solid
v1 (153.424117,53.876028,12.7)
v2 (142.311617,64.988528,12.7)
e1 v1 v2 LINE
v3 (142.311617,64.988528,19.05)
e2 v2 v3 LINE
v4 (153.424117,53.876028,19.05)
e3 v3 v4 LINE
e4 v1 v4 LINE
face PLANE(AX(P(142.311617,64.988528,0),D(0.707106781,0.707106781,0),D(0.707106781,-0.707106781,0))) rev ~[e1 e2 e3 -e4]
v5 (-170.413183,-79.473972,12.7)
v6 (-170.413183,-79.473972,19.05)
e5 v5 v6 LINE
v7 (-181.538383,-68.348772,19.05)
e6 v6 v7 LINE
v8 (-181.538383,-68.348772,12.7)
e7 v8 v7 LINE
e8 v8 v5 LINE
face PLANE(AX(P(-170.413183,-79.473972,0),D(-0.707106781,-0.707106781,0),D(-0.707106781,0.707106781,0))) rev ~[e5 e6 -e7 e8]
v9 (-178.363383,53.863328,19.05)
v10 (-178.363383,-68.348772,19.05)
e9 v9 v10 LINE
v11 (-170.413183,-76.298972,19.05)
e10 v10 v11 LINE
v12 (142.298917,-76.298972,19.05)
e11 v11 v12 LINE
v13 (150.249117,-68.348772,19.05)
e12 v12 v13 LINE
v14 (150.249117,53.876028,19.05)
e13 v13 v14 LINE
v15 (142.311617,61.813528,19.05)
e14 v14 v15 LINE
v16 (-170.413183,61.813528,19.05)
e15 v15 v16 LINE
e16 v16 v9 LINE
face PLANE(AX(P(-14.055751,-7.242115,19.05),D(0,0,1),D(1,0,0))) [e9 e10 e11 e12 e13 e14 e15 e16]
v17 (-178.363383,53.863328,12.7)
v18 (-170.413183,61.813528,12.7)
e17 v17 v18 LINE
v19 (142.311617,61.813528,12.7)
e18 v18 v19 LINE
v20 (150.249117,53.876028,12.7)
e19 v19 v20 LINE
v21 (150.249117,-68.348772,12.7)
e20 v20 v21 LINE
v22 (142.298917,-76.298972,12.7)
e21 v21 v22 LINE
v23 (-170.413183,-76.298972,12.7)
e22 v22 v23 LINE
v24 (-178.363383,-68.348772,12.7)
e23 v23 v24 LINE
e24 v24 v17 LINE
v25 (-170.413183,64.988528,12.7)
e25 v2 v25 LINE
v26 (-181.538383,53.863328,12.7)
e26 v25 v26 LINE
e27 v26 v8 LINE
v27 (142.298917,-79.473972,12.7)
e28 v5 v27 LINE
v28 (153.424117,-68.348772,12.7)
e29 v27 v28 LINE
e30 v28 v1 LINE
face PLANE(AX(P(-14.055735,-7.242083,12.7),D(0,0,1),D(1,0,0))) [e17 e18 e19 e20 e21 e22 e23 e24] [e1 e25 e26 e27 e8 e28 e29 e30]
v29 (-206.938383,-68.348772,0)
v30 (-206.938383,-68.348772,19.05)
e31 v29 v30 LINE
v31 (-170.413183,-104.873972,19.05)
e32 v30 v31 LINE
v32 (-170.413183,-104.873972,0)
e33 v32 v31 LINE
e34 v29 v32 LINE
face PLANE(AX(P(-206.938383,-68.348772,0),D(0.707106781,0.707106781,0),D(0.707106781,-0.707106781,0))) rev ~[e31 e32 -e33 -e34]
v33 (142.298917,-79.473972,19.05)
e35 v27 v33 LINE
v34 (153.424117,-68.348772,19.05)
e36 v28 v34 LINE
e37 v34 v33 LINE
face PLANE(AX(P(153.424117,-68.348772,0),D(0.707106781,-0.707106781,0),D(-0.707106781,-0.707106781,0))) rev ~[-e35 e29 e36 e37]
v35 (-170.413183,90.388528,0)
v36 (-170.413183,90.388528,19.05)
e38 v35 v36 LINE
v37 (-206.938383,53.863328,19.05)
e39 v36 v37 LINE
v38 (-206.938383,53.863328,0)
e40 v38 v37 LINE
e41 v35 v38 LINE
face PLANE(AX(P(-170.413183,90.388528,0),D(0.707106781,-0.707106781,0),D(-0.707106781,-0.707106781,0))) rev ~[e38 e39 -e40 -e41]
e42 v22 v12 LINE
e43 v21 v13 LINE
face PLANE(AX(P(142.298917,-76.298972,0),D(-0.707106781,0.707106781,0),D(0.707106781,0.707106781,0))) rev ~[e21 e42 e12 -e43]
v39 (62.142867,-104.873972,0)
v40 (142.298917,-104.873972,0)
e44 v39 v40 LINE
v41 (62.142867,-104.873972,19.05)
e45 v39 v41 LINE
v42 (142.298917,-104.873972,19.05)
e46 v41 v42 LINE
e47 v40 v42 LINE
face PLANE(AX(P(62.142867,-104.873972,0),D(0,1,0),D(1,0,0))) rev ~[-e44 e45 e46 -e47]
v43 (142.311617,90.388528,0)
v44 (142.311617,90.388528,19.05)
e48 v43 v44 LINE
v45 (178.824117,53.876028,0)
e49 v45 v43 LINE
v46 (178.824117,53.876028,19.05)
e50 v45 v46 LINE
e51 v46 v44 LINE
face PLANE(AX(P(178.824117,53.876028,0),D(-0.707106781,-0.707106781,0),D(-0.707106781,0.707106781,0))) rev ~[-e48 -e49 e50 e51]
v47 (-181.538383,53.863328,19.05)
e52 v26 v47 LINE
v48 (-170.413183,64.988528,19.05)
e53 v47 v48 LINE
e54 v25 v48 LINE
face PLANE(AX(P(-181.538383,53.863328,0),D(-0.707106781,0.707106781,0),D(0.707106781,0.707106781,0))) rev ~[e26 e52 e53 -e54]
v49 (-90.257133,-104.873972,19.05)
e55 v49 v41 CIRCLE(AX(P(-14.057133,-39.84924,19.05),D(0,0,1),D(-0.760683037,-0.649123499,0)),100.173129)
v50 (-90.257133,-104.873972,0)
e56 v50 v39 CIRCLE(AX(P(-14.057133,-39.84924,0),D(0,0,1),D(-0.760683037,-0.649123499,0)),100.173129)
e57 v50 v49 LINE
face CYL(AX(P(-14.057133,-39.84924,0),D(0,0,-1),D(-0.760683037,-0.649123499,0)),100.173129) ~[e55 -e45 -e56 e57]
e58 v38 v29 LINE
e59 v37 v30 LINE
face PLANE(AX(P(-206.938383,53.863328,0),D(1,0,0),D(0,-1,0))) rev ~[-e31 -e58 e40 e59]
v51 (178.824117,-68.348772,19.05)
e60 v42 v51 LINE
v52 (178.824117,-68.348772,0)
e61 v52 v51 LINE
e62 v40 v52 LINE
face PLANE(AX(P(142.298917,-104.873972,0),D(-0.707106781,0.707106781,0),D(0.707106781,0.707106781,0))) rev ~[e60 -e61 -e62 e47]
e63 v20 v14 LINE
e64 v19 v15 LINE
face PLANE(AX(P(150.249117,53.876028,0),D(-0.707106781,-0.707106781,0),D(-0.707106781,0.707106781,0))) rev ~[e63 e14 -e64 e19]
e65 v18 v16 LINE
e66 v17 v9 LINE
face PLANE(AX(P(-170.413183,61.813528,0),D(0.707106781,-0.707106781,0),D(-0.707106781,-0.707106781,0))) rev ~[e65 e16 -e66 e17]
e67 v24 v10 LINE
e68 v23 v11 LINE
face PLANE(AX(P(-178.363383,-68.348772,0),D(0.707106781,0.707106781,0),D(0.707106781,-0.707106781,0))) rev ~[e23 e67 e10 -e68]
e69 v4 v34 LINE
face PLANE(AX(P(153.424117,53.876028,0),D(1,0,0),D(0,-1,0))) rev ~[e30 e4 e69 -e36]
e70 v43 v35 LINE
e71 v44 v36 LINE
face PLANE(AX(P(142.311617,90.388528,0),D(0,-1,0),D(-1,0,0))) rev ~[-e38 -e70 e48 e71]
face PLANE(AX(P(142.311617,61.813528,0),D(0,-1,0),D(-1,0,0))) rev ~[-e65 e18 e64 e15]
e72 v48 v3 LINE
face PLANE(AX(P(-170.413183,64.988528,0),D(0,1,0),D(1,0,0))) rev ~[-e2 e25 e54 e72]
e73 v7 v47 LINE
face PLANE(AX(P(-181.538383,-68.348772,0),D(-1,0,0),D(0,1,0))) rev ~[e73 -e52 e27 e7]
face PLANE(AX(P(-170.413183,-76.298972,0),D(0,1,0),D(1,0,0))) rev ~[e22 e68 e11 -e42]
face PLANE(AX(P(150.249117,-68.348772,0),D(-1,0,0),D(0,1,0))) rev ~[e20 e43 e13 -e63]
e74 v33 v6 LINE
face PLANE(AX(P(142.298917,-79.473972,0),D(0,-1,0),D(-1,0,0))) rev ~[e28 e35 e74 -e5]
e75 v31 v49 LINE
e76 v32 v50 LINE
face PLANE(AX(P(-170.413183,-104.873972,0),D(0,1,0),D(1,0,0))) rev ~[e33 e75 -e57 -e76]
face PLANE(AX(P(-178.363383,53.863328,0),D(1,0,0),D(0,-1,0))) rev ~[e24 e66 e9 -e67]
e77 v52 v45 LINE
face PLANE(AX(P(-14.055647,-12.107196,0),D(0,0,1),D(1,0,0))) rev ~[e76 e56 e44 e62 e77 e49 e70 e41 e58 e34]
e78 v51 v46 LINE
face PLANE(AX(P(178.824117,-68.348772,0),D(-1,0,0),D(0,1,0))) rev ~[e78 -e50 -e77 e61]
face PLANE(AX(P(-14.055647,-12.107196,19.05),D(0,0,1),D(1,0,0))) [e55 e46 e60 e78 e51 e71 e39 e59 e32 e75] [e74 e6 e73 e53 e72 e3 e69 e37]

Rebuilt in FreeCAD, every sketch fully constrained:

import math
import FreeCAD as App
import Part
import Sketcher
Q = App.Units.Quantity


def add_polygon(sketch, points):
    """Adds a closed chain of lines whose ends are joined by coincident constraints."""
    first, n = sketch.GeometryCount, len(points)
    for a, b in zip(points, points[1:] + points[:1]):
        sketch.addGeometry(Part.LineSegment(App.Vector(*a, 0), App.Vector(*b, 0)), False)
    for i in range(n):
        sketch.addConstraint(Sketcher.Constraint("Coincident", first + i, 2, first + (i + 1) % n, 1))

doc = App.newDocument("Part")
body = doc.addObject("PartDesign::Body", "Body")

sketch1 = body.newObject("Sketcher::SketchObject", "Sketch")
sketch1.AttachmentSupport = (doc.getObject("XY_Plane"), [""])
sketch1.MapMode = "FlatFace"
add_polygon(sketch1, [(-170, 62), (-178, 54), (-178, -68), (-170, -76), (142, -76), (150, -68), (150, 54), (142, 62)])
sketch1.addConstraint([
    Sketcher.Constraint("Vertical", 1),
    Sketcher.Constraint("Horizontal", 3),
    Sketcher.Constraint("Vertical", 5),
    Sketcher.Constraint("Horizontal", 7),
    Sketcher.Constraint("Perpendicular", 0, 2),
    Sketcher.Constraint("Perpendicular", 2, 4),
    Sketcher.Constraint("Perpendicular", 4, 6),
    Sketcher.Constraint("Horizontal", 1, 2, 4, 2),
    Sketcher.Constraint("Vertical", 2, 2, 7, 2),
    Sketcher.Constraint("Equal", 0, 2),
    Sketcher.Constraint("DistanceX", 7, 2, 7, 1, Q("12.312 in")),
    Sketcher.Constraint("DistanceY", 5, 1, 5, 2, Q("4.812 in")),
    Sketcher.Constraint("DistanceX", 3, 1, 3, 2, Q("12.3115 in")),
    Sketcher.Constraint("DistanceX", 1, 2, 2, 2, Q("0.313 in")),
    Sketcher.Constraint("DistanceY", -1, 1, 0, 2, 53.863328),
    Sketcher.Constraint("DistanceX", 0, 2, -1, 1, 178.363383),
])
pad1 = body.newObject("PartDesign::Pad", "Pad")
pad1.Profile = sketch1
pad1.Length = Q("0.75 in")

sketch2 = body.newObject("Sketcher::SketchObject", "Sketch001")
sketch2.AttachmentSupport = (doc.getObject("XY_Plane"), [""])
sketch2.MapMode = "FlatFace"
add_polygon(sketch2, [(153, 54), (142, 65), (-170, 65), (-182, 54), (-182, -68), (-170, -79), (142, -79), (153, -68)])
add_polygon(sketch2, [(-170, -76), (-178, -68), (-178, 54), (-170, 62), (142, 62), (150, 54), (150, -68), (142, -76)])
sketch2.addConstraint([
    Sketcher.Constraint("Horizontal", 1),
    Sketcher.Constraint("Vertical", 3),
    Sketcher.Constraint("Horizontal", 5),
    Sketcher.Constraint("Vertical", 7),
    Sketcher.Constraint("Vertical", 9),
    Sketcher.Constraint("Horizontal", 11),
    Sketcher.Constraint("Vertical", 13),
    Sketcher.Constraint("Horizontal", 15),
    Sketcher.Constraint("Perpendicular", 0, 2),
    Sketcher.Constraint("Perpendicular", 2, 4),
    Sketcher.Constraint("Perpendicular", 4, 6),
    Sketcher.Constraint("Perpendicular", 6, 8),
    Sketcher.Constraint("Perpendicular", 8, 10),
    Sketcher.Constraint("Perpendicular", 10, 12),
    Sketcher.Constraint("Perpendicular", 12, 14),
    Sketcher.Constraint("Horizontal", 3, 2, 6, 2),
    Sketcher.Constraint("Horizontal", 6, 2, 8, 2),
    Sketcher.Constraint("Horizontal", 2, 2, 9, 2),
    Sketcher.Constraint("Horizontal", 7, 2, 12, 2),
    Sketcher.Constraint("Horizontal", 8, 2, 13, 2),
    Sketcher.Constraint("Vertical", 1, 2, 4, 2),
    Sketcher.Constraint("Vertical", 4, 2, 10, 2),
    Sketcher.Constraint("Vertical", 0, 2, 11, 2),
    Sketcher.Constraint("Vertical", 5, 2, 14, 2),
    Sketcher.Constraint("Vertical", 10, 2, 15, 2),
    Sketcher.Constraint("DistanceX", 1, 2, 1, 1, Q("12.312 in")),
    Sketcher.Constraint("DistanceY", 7, 1, 7, 2, Q("4.812 in")),
    Sketcher.Constraint("DistanceX", 2, 2, 0, 2, Q("12.75 in")),
    Sketcher.Constraint("DistanceX", 5, 1, 5, 2, Q("12.3115 in")),
    Sketcher.Constraint("DistanceX", 3, 2, 8, 2, Q("0.125 in")),
    Sketcher.Constraint("DistanceY", -1, 1, 0, 2, 64.988528),
    Sketcher.Constraint("DistanceX", -1, 1, 0, 2, 142.311617),
])
pad2 = body.newObject("PartDesign::Pad", "Pad001")
pad2.Profile = sketch2
pad2.Length = Q("0.5 in")

sketch3 = body.newObject("Sketcher::SketchObject", "Sketch002")
sketch3.AttachmentSupport = (doc.getObject("XY_Plane"), [""])
sketch3.MapMode = "FlatFace"
sketch3.addGeometry(Part.LineSegment(App.Vector(179, 54, 0), App.Vector(142, 90, 0)), False)
sketch3.addGeometry(Part.LineSegment(App.Vector(142, 90, 0), App.Vector(-170, 90, 0)), False)
sketch3.addGeometry(Part.LineSegment(App.Vector(-170, 90, 0), App.Vector(-207, 54, 0)), False)
sketch3.addGeometry(Part.LineSegment(App.Vector(-207, 54, 0), App.Vector(-207, -68, 0)), False)
sketch3.addGeometry(Part.LineSegment(App.Vector(-207, -68, 0), App.Vector(-170, -105, 0)), False)
sketch3.addGeometry(Part.LineSegment(App.Vector(-170, -105, 0), App.Vector(-90, -105, 0)), False)
sketch3.addGeometry(Part.ArcOfCircle(Part.Circle(App.Vector(-14, -40, 0), App.Vector(0, 0, 1), 100), math.radians(-140), math.radians(-40)), False)
sketch3.addGeometry(Part.LineSegment(App.Vector(62, -105, 0), App.Vector(142, -105, 0)), False)
sketch3.addGeometry(Part.LineSegment(App.Vector(142, -105, 0), App.Vector(179, -68, 0)), False)
sketch3.addGeometry(Part.LineSegment(App.Vector(179, -68, 0), App.Vector(179, 54, 0)), False)
add_polygon(sketch3, [(-182, 54), (-170, 65), (142, 65), (153, 54), (153, -68), (142, -79), (-170, -79), (-182, -68)])
sketch3.addConstraint([
    Sketcher.Constraint("Coincident", 0, 2, 1, 1),
    Sketcher.Constraint("Coincident", 1, 2, 2, 1),
    Sketcher.Constraint("Coincident", 2, 2, 3, 1),
    Sketcher.Constraint("Coincident", 3, 2, 4, 1),
    Sketcher.Constraint("Coincident", 4, 2, 5, 1),
    Sketcher.Constraint("Coincident", 5, 2, 6, 1),
    Sketcher.Constraint("Coincident", 6, 2, 7, 1),
    Sketcher.Constraint("Coincident", 7, 2, 8, 1),
    Sketcher.Constraint("Coincident", 8, 2, 9, 1),
    Sketcher.Constraint("Coincident", 9, 2, 0, 1),
    Sketcher.Constraint("Horizontal", 1),
    Sketcher.Constraint("Vertical", 3),
    Sketcher.Constraint("Horizontal", 5),
    Sketcher.Constraint("Horizontal", 7),
    Sketcher.Constraint("Vertical", 9),
    Sketcher.Constraint("Horizontal", 11),
    Sketcher.Constraint("Vertical", 13),
    Sketcher.Constraint("Horizontal", 15),
    Sketcher.Constraint("Vertical", 17),
    Sketcher.Constraint("Perpendicular", 0, 2),
    Sketcher.Constraint("Perpendicular", 2, 4),
    Sketcher.Constraint("Perpendicular", 4, 8),
    Sketcher.Constraint("Parallel", 8, 10),
    Sketcher.Constraint("Perpendicular", 10, 12),
    Sketcher.Constraint("Perpendicular", 12, 14),
    Sketcher.Constraint("Perpendicular", 14, 16),
    Sketcher.Constraint("Horizontal", 5, 2, 6, 2),
    Sketcher.Constraint("Horizontal", 3, 2, 8, 2),
    Sketcher.Constraint("Horizontal", 9, 2, 12, 2),
    Sketcher.Constraint("Horizontal", 8, 2, 13, 2),
    Sketcher.Constraint("Horizontal", 13, 2, 16, 2),
    Sketcher.Constraint("Horizontal", 2, 2, 17, 2),
    Sketcher.Constraint("Vertical", 1, 2, 4, 2),
    Sketcher.Constraint("Vertical", 4, 2, 10, 2),
    Sketcher.Constraint("Vertical", 0, 2, 11, 2),
    Sketcher.Constraint("Vertical", 7, 2, 14, 2),
    Sketcher.Constraint("Vertical", 10, 2, 15, 2),
    Sketcher.Constraint("Equal", 5, 7),
    Sketcher.Constraint("DistanceX", 5, 2, 6, 3, Q("3 in")),
    Sketcher.Constraint("DistanceY", 10, 2, 1, 2, Q("1 in")),
    Sketcher.Constraint("DistanceX", 1, 2, 1, 1, Q("12.312 in")),
    Sketcher.Constraint("DistanceY", 9, 1, 9, 2, Q("4.812 in")),
    Sketcher.Constraint("DistanceX", 2, 2, 0, 2, Q("13.75 in")),
    Sketcher.Constraint("DistanceX", 15, 2, 15, 1, Q("12.3115 in")),
    Sketcher.Constraint("Radius", 6, 100.173129),
    Sketcher.Constraint("DistanceY", 6, 3, -1, 1, 39.84924),
    Sketcher.Constraint("DistanceX", 6, 3, -1, 1, 14.057133),
])
pad3 = body.newObject("PartDesign::Pad", "Pad002")
pad3.Profile = sketch3
pad3.Length = Q("0.75 in")

doc.recompute()
